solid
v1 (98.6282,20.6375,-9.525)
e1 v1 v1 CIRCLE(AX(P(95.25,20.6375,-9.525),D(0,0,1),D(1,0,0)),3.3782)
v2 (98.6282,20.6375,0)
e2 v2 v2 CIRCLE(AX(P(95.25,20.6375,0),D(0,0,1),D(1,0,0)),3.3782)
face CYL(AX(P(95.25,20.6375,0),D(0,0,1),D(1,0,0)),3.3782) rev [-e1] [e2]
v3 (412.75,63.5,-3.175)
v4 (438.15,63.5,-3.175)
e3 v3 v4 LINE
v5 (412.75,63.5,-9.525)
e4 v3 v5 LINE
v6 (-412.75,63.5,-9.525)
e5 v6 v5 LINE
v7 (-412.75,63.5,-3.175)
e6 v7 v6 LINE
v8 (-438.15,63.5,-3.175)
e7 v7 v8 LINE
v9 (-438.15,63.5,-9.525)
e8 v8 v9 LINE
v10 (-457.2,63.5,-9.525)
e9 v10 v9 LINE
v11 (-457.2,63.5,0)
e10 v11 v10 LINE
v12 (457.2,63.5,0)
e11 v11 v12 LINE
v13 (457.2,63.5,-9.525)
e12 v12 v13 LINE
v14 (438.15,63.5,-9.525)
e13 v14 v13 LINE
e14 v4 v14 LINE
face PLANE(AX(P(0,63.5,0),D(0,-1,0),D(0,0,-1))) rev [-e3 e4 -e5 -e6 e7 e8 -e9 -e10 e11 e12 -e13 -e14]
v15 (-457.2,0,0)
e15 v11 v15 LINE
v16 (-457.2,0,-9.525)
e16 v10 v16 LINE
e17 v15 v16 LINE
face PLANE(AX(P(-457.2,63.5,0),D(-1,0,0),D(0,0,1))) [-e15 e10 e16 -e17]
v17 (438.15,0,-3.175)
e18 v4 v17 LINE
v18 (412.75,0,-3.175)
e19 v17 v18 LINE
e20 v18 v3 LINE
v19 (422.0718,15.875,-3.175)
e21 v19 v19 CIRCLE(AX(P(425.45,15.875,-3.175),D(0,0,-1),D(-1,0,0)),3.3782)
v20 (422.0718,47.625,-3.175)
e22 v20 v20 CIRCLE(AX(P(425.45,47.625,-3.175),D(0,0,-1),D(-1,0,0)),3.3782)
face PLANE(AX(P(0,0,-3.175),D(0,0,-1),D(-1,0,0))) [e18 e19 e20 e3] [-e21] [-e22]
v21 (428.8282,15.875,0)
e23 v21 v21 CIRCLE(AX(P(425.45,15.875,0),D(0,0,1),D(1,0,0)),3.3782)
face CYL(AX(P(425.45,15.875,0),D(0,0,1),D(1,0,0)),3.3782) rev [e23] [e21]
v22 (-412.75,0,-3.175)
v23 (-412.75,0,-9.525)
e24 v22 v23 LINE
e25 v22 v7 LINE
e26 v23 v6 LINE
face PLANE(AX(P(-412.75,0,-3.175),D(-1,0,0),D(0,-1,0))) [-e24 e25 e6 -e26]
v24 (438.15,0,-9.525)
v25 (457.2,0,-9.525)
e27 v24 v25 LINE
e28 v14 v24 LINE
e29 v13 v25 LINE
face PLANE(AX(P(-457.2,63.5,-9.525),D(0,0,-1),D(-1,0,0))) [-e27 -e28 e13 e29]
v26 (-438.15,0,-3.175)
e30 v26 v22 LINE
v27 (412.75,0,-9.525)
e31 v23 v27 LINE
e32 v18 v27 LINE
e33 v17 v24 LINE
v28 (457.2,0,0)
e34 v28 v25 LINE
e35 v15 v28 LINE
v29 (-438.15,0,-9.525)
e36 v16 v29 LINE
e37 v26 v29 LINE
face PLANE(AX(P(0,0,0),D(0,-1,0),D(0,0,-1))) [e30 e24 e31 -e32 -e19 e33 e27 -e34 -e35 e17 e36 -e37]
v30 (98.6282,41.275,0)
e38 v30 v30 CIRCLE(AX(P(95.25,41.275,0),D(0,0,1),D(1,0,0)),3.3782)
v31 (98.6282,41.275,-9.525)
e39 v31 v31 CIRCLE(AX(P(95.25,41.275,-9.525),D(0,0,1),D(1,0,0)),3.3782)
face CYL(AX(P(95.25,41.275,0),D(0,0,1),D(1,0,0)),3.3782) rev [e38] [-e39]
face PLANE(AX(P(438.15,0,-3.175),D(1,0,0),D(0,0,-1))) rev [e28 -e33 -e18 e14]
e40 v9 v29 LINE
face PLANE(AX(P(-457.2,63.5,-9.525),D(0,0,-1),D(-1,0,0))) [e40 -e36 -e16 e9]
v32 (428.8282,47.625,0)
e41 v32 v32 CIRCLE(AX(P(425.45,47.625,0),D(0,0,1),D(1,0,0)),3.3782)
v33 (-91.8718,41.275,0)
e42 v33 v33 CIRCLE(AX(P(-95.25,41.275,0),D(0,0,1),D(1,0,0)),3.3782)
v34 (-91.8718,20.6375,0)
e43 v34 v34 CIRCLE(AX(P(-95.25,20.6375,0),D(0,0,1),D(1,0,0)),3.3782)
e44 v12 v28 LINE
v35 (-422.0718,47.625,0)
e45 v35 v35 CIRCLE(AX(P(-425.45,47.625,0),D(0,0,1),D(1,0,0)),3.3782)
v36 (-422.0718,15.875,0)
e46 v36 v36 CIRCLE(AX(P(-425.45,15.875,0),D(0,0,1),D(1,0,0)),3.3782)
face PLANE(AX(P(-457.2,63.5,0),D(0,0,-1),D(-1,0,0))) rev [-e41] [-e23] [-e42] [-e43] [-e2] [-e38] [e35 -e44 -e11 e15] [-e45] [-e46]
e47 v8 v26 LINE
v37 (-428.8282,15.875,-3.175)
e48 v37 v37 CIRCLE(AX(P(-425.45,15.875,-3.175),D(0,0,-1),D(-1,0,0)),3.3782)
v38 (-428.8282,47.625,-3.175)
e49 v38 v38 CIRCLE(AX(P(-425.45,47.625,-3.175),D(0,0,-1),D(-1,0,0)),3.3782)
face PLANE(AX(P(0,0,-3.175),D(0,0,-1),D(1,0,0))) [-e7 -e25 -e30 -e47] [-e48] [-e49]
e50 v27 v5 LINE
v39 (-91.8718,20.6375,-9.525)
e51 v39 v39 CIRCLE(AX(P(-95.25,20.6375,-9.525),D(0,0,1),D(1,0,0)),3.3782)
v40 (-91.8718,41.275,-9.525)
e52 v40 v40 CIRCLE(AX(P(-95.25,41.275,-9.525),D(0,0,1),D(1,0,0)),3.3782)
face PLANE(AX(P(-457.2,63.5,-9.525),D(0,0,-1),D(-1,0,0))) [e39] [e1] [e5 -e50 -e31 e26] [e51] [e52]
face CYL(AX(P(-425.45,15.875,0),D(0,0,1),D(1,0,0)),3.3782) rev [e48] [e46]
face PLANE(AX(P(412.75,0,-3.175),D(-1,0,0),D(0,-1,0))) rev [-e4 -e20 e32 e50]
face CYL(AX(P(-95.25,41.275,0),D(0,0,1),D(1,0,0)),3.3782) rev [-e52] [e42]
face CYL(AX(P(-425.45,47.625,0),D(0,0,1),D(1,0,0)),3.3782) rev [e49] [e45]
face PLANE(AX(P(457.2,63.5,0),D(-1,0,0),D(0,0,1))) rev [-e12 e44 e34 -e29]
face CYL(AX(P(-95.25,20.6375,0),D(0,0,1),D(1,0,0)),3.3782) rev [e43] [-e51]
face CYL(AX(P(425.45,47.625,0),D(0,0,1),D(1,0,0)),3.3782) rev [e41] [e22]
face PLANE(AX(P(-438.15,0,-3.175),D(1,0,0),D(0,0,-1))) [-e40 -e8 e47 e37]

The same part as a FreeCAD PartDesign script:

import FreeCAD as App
import Part
import Sketcher
from FreeCAD import Vector
Q = App.Units.Quantity

doc = App.newDocument("Part")
body = doc.addObject("PartDesign::Body", "Body")

sketch1 = body.newObject("Sketcher::SketchObject", "Sketch")
sketch1.AttachmentSupport = (doc.getObject("XZ_Plane"), [""])
sketch1.MapMode = "FlatFace"
sketch1.addGeometry(Part.LineSegment(Vector(-457, -10, 0), Vector(-457, 0, 0)), False)
sketch1.addGeometry(Part.LineSegment(Vector(-457, 0, 0), Vector(457, 0, 0)), False)
sketch1.addGeometry(Part.LineSegment(Vector(457, 0, 0), Vector(457, -10, 0)), False)
sketch1.addGeometry(Part.LineSegment(Vector(457, -10, 0), Vector(-457, -10, 0)), False)
sketch1.addConstraint(Sketcher.Constraint("Coincident", 0, 2, 1, 1))
sketch1.addConstraint(Sketcher.Constraint("Coincident", 1, 2, 2, 1))
sketch1.addConstraint(Sketcher.Constraint("Coincident", 2, 2, 3, 1))
sketch1.addConstraint(Sketcher.Constraint("Coincident", 3, 2, 0, 1))
sketch1.addConstraint(Sketcher.Constraint("Vertical", 0))
sketch1.addConstraint(Sketcher.Constraint("Horizontal", 1))
sketch1.addConstraint(Sketcher.Constraint("Vertical", 2))
sketch1.addConstraint(Sketcher.Constraint("Horizontal", 3))
sketch1.addConstraint(Sketcher.Constraint("Symmetric", 0, 2, 1, 2, -1, 1))
sketch1.addConstraint(Sketcher.Constraint("DistanceX", 1, 1, 1, 2, Q("36 in")))
sketch1.addConstraint(Sketcher.Constraint("DistanceY", 0, 1, 0, 2, Q("0.375 in")))
pad1 = body.newObject("PartDesign::Pad", "Pad")
pad1.Profile = sketch1
pad1.Length = Q("2.5 in")
pad1.Reversed = True

sketch2 = body.newObject("Sketcher::SketchObject", "Sketch001")
sketch2.AttachmentSupport = (doc.getObject("XY_Plane"), [""])
sketch2.MapMode = "FlatFace"
sketch2.AttachmentOffset = App.Placement(Vector(0, 0, -0.375 * 25.4), App.Rotation())
sketch2.addGeometry(Part.LineSegment(Vector(438, 64, 0), Vector(438, 0, 0)), False)
sketch2.addGeometry(Part.LineSegment(Vector(438, 0, 0), Vector(413, 0, 0)), False)
sketch2.addGeometry(Part.LineSegment(Vector(413, 0, 0), Vector(413, 64, 0)), False)
sketch2.addGeometry(Part.LineSegment(Vector(413, 64, 0), Vector(438, 64, 0)), False)
sketch2.addConstraint(Sketcher.Constraint("Coincident", 0, 2, 1, 1))
sketch2.addConstraint(Sketcher.Constraint("Coincident", 1, 2, 2, 1))
sketch2.addConstraint(Sketcher.Constraint("Coincident", 2, 2, 3, 1))
sketch2.addConstraint(Sketcher.Constraint("Coincident", 3, 2, 0, 1))
sketch2.addConstraint(Sketcher.Constraint("Vertical", 0))
sketch2.addConstraint(Sketcher.Constraint("Horizontal", 1))
sketch2.addConstraint(Sketcher.Constraint("Vertical", 2))
sketch2.addConstraint(Sketcher.Constraint("Horizontal", 3))
sketch2.addConstraint(Sketcher.Constraint("PointOnObject", 0, 2, -1))
sketch2.addConstraint(Sketcher.Constraint("DistanceX", 1, 2, 1, 1, Q("1 in")))
sketch2.addConstraint(Sketcher.Constraint("DistanceY", 0, 2, 0, 1, Q("2.5 in")))
sketch2.addConstraint(Sketcher.Constraint("DistanceX", -1, 1, 0, 2, Q("17.25 in")))
pocket1 = body.newObject("PartDesign::Pocket", "Pocket")
pocket1.Profile = sketch2
pocket1.Length = Q("0.25 in")
pocket1.Reversed = True

sketch3 = body.newObject("Sketcher::SketchObject", "Sketch002")
sketch3.AttachmentSupport = (doc.getObject("XY_Plane"), [""])
sketch3.MapMode = "FlatFace"
sketch3.addGeometry(Part.Circle(Vector(425.4, 47.6, 0), Vector(0, 0, 1), 3.4), False)
sketch3.addConstraint(Sketcher.Constraint("Diameter", 0, Q("0.266 in")))
sketch3.addConstraint(Sketcher.Constraint("DistanceX", -1, 1, 0, 3, Q("16.75 in")))
sketch3.addConstraint(Sketcher.Constraint("DistanceY", -1, 1, 0, 3, Q("1.875 in")))
doc.recompute()
hole = body.newObject("PartDesign::Hole", "Hole")
hole.Profile = sketch3
hole.ThreadType = "None"
hole.Diameter = Q("0.266 in")
hole.DepthType = "ThroughAll"

sketch4 = body.newObject("Sketcher::SketchObject", "Sketch003")
sketch4.AttachmentSupport = (doc.getObject("XY_Plane"), [""])
sketch4.MapMode = "FlatFace"
sketch4.addGeometry(Part.Circle(Vector(-95.2, 41.3, 0), Vector(0, 0, 1), 3.4), False)
sketch4.addGeometry(Part.Circle(Vector(-95.2, 20.6, 0), Vector(0, 0, 1), 3.4), False)
sketch4.addGeometry(Part.Circle(Vector(95.2, 41.3, 0), Vector(0, 0, 1), 3.4), False)
sketch4.addGeometry(Part.Circle(Vector(95.2, 20.6, 0), Vector(0, 0, 1), 3.4), False)
sketch4.addConstraint(Sketcher.Constraint("Equal", 0, 1))
sketch4.addConstraint(Sketcher.Constraint("Equal", 1, 2))
sketch4.addConstraint(Sketcher.Constraint("Equal", 2, 3))
sketch4.addConstraint(Sketcher.Constraint("Symmetric", 0, 3, 2, 3, -2))
sketch4.addConstraint(Sketcher.Constraint("Symmetric", 1, 3, 3, 3, -2))
sketch4.addConstraint(Sketcher.Constraint("Vertical", 0, 3, 1, 3))
sketch4.addConstraint(Sketcher.Constraint("Diameter", 0, Q("0.266 in")))
sketch4.addConstraint(Sketcher.Constraint("DistanceX", 0, 3, 2, 3, Q("7.5 in")))
sketch4.addConstraint(Sketcher.Constraint("DistanceY", -1, 1, 0, 3, Q("1.625 in")))
sketch4.addConstraint(Sketcher.Constraint("DistanceY", -1, 1, 1, 3, Q("0.8125 in")))
doc.recompute()
hole2 = body.newObject("PartDesign::Hole", "Hole001")
hole2.Profile = sketch4
hole2.ThreadType = "None"
hole2.Diameter = Q("0.266 in")
hole2.DepthType = "ThroughAll"
doc.recompute()

linearpattern = body.newObject("PartDesign::LinearPattern", "LinearPattern")
linearpattern.Originals = [hole]
linearpattern.Direction = (doc.getObject("Y_Axis"), [""])
linearpattern.Mode = "offset"
linearpattern.Offset = Q("1.25 in")
linearpattern.Occurrences = 2
linearpattern.Reversed = True
body.Tip = linearpattern
doc.recompute()

mirrored = body.newObject("PartDesign::Mirrored", "Mirrored")
mirrored.Originals = [pocket1, hole]
mirrored.MirrorPlane = (doc.getObject("YZ_Plane"), [""])
body.Tip = mirrored

sketch5 = body.newObject("Sketcher::SketchObject", "Sketch004")
sketch5.AttachmentSupport = (doc.getObject("XY_Plane"), [""])
sketch5.MapMode = "FlatFace"
sketch5.addGeometry(Part.Circle(Vector(-425.4, 15.9, 0), Vector(0, 0, 1), 3.4), False)
sketch5.addConstraint(Sketcher.Constraint("Diameter", 0, Q("0.266 in")))
sketch5.addConstraint(Sketcher.Constraint("DistanceX", 0, 3, -1, 1, Q("16.75 in")))
sketch5.addConstraint(Sketcher.Constraint("DistanceY", -1, 1, 0, 3, Q("0.625 in")))
doc.recompute()
hole3 = body.newObject("PartDesign::Hole", "Hole002")
hole3.Profile = sketch5
hole3.ThreadType = "None"
hole3.Diameter = Q("0.266 in")
hole3.DepthType = "ThroughAll"

doc.recompute()
